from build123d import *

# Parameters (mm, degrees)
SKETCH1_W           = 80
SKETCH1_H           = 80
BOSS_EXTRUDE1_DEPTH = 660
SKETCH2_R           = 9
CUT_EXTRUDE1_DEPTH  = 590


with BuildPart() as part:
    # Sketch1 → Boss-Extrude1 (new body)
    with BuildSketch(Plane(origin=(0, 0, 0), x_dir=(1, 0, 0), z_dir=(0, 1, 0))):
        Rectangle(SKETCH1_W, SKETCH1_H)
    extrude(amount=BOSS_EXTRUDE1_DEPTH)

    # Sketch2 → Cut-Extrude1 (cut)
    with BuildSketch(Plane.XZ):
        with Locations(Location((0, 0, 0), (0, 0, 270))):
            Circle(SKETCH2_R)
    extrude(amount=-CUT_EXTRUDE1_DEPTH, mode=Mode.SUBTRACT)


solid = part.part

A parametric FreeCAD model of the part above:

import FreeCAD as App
import Part
import Sketcher

V = App.Vector
Q = App.Units.Quantity


def add_polygon(sketch, points):
    """Adds a closed chain of lines whose ends are joined by coincident constraints."""
    first, n = sketch.GeometryCount, len(points)
    for a, b in zip(points, points[1:] + points[:1]):
        sketch.addGeometry(Part.LineSegment(App.Vector(*a, 0), App.Vector(*b, 0)), False)
    for i in range(n):
        sketch.addConstraint(Sketcher.Constraint("Coincident", first + i, 2, first + (i + 1) % n, 1))

doc = App.newDocument("Part")
body = doc.addObject("PartDesign::Body", "Body")

# Sketch on XZ plane
sketch1 = doc.addObject("Sketcher::SketchObject", "Sketch")
body.addObject(sketch1)
sketch1.AttachmentSupport = (doc.XZ_Plane, [""])
sketch1.MapMode = "FlatFace"
add_polygon(sketch1, [(-40, -40), (-40, 40), (40, 40), (40, -40)])  # lines 0-3
sketch1.addConstraint(Sketcher.Constraint("Vertical", 0))
sketch1.addConstraint(Sketcher.Constraint("Horizontal", 1))
sketch1.addConstraint(Sketcher.Constraint("Vertical", 2))
sketch1.addConstraint(Sketcher.Constraint("Horizontal", 3))
sketch1.addConstraint(Sketcher.Constraint("Symmetric", 0, 2, 2, 2, -1, 1))
sketch1.addConstraint(Sketcher.Constraint("Equal", 3, 0))
sketch1.addConstraint(Sketcher.Constraint("DistanceX", 1, 1, 1, 2, Q("80 mm")))
pad1 = doc.addObject("PartDesign::Pad", "Pad")
body.addObject(pad1)
pad1.Profile = sketch1
pad1.Length = 660
pad1.Reversed = True

# Sketch on XZ plane
sketch2 = doc.addObject("Sketcher::SketchObject", "Sketch001")
body.addObject(sketch2)
sketch2.AttachmentSupport = (doc.XZ_Plane, [""])
sketch2.MapMode = "FlatFace"
sketch2.addGeometry(Part.Circle(V(0, 0, 0), V(0, 0, 1), 9), False)
sketch2.addConstraint(Sketcher.Constraint("Coincident", 0, 3, -1, 1))
sketch2.addConstraint(Sketcher.Constraint("Diameter", 0, Q("18 mm")))
pocket1 = doc.addObject("PartDesign::Pocket", "Pocket")
body.addObject(pocket1)
pocket1.Profile = sketch2
pocket1.Length = 590

doc.recompute()
